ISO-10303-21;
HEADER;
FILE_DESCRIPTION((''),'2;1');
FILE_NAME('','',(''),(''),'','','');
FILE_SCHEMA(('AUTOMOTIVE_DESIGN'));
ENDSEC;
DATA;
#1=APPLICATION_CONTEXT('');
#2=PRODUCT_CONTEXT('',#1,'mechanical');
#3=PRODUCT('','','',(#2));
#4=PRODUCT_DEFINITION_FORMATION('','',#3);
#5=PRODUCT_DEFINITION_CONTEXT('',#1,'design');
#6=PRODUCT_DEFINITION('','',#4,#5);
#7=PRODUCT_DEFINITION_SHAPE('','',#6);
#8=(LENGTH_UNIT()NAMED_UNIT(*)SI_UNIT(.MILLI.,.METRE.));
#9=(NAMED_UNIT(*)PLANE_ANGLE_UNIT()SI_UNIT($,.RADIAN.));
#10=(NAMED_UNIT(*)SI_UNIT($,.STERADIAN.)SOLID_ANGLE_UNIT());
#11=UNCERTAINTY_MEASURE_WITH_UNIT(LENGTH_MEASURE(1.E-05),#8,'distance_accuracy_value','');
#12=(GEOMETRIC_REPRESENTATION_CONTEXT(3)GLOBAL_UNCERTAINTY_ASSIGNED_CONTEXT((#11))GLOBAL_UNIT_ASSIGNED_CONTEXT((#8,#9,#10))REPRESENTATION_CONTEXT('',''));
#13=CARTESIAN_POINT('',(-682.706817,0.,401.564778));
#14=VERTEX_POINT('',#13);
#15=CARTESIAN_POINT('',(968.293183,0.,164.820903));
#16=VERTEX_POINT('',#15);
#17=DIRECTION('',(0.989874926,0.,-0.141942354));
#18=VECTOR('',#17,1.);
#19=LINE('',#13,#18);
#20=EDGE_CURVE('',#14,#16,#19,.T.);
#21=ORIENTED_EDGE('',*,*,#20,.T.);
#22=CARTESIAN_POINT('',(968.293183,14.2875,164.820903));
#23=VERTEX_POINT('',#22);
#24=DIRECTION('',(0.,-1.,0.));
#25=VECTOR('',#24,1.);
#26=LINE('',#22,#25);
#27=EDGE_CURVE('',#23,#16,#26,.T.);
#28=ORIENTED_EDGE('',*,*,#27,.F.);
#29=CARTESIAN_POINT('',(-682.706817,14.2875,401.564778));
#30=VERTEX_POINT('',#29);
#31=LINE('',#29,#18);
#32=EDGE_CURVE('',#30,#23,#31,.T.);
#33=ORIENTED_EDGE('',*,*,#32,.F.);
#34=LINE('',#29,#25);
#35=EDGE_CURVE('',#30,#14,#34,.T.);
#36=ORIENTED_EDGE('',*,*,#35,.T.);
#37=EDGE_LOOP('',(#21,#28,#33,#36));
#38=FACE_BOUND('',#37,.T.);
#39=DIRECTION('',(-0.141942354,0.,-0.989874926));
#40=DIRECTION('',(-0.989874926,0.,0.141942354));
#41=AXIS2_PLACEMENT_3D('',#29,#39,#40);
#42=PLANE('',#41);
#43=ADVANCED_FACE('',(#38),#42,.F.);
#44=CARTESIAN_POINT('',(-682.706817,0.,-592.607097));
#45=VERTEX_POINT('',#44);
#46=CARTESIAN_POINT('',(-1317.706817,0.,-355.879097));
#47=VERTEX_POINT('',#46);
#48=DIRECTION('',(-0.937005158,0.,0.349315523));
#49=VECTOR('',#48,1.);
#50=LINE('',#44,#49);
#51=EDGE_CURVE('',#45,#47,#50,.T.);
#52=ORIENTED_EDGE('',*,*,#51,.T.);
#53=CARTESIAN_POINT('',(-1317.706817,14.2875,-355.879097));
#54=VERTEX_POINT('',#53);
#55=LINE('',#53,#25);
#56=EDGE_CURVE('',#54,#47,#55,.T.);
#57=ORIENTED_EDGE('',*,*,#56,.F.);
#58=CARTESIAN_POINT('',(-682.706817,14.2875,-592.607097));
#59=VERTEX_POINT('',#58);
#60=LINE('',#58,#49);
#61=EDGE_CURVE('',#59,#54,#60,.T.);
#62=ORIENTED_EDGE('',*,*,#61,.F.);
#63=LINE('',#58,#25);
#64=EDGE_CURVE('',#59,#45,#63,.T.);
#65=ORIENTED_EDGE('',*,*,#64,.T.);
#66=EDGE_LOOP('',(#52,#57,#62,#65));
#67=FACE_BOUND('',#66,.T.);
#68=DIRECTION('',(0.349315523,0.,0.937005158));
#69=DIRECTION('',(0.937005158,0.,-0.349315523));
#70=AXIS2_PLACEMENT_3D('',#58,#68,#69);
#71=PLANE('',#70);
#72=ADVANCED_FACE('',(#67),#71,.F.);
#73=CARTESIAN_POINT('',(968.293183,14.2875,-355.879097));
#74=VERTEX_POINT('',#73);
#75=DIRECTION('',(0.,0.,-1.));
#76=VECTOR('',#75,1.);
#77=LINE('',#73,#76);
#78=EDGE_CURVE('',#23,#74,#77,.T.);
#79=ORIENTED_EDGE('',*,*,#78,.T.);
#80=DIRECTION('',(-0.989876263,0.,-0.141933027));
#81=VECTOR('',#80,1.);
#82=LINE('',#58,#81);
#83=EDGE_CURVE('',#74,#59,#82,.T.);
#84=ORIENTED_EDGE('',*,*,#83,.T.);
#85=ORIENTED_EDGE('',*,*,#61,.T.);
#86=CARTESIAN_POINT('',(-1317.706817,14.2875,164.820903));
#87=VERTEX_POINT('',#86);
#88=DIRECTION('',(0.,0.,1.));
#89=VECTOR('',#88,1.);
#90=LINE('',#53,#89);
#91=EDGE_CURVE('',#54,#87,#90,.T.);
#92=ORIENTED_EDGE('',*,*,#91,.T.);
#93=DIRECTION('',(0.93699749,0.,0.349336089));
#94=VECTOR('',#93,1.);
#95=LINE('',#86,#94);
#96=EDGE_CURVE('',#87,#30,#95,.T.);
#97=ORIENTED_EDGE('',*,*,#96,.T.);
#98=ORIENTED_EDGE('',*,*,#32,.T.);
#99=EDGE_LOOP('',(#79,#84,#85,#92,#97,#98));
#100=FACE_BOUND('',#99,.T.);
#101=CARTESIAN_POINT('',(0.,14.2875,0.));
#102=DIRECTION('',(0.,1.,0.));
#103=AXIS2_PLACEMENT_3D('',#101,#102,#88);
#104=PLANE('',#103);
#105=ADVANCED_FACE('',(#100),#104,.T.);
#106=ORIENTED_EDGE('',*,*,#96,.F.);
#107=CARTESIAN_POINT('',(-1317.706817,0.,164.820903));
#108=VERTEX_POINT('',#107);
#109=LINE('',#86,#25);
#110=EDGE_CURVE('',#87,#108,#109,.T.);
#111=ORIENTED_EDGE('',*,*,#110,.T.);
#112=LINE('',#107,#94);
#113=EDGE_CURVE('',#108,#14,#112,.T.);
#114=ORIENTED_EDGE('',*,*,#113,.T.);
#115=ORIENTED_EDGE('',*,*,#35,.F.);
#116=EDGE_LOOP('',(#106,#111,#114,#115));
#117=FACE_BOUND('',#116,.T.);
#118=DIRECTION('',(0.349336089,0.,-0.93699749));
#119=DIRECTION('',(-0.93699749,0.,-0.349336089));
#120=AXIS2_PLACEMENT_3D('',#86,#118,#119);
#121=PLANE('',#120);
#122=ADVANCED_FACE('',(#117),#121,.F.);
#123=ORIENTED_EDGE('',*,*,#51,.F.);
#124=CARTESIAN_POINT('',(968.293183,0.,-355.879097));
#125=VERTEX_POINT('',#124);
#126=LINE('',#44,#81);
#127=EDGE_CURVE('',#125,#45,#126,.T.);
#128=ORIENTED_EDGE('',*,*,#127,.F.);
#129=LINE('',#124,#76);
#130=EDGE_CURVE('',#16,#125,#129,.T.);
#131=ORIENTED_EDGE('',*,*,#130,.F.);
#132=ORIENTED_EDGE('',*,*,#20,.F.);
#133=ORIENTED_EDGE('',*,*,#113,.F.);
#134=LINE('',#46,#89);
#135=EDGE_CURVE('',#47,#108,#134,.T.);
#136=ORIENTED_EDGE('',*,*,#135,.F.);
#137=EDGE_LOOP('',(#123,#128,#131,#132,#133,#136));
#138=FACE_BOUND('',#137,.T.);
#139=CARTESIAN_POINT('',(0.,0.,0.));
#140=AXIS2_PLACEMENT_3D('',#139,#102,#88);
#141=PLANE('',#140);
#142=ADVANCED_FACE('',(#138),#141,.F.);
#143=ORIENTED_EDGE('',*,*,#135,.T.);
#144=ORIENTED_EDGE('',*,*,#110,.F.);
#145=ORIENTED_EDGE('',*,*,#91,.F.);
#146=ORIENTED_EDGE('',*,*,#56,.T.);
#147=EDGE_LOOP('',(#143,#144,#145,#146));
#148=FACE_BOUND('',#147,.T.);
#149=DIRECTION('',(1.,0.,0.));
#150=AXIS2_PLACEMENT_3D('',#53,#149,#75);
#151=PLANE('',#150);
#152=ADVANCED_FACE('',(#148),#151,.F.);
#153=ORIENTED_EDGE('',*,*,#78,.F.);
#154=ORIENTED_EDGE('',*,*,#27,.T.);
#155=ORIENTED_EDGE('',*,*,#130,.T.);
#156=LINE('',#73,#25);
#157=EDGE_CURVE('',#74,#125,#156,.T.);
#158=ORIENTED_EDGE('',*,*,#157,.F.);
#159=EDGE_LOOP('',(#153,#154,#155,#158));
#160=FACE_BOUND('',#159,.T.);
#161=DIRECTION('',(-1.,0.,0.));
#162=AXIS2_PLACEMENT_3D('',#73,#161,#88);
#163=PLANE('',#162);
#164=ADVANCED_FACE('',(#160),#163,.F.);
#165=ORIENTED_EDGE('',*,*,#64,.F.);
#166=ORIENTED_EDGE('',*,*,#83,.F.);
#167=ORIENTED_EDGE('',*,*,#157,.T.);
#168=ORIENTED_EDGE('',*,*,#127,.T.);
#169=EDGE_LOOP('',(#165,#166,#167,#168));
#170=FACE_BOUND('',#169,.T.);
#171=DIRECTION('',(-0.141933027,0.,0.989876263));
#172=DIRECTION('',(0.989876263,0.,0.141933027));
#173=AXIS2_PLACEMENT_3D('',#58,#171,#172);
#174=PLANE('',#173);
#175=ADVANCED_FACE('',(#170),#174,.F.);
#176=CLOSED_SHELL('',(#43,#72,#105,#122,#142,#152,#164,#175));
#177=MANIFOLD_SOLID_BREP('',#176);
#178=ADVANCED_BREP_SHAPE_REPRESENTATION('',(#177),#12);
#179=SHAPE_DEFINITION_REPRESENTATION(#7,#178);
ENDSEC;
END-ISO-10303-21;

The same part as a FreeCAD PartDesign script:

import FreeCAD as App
import Part
import Sketcher
Q = App.Units.Quantity


def add_polygon(sketch, points):
    """Adds a closed chain of lines whose ends are joined by coincident constraints."""
    first, n = sketch.GeometryCount, len(points)
    for a, b in zip(points, points[1:] + points[:1]):
        sketch.addGeometry(Part.LineSegment(App.Vector(*a, 0), App.Vector(*b, 0)), False)
    for i in range(n):
        sketch.addConstraint(Sketcher.Constraint("Coincident", first + i, 2, first + (i + 1) % n, 1))

doc = App.newDocument("Part")
body = doc.addObject("PartDesign::Body", "Body")

# Sketch on XZ plane
sketch1 = body.newObject("Sketcher::SketchObject", "Sketch")
sketch1.AttachmentSupport = (doc.getObject("XZ_Plane"), [""])
sketch1.MapMode = "FlatFace"
add_polygon(sketch1, [(-1318, -356), (-1318, 165), (-683, 402), (968, 165), (968, -356), (-683, -593)])  # lines 0-5
sketch1.addConstraint(Sketcher.Constraint("Vertical", 0))
sketch1.addConstraint(Sketcher.Constraint("Vertical", 3))
sketch1.addConstraint(Sketcher.Constraint("Horizontal", 0, 2, 2, 2))
sketch1.addConstraint(Sketcher.Constraint("Horizontal", 3, 2, 5, 2))
sketch1.addConstraint(Sketcher.Constraint("Vertical", 1, 2, 4, 2))
sketch1.addConstraint(Sketcher.Constraint("DistanceY", 0, 1, 0, 2, Q("20.5 in")))
sketch1.addConstraint(Sketcher.Constraint("DistanceX", 0, 2, 1, 2, Q("25 in")))
sketch1.addConstraint(Sketcher.Constraint("DistanceX", 1, 2, 2, 2, Q("65 in")))
sketch1.addConstraint(Sketcher.Constraint("DistanceY", 4, 2, 0, 2, Q("29.82 in")))
sketch1.addConstraint(Sketcher.Constraint("DistanceY", 4, 2, 1, 2, Q("39.140625 in")))
sketch1.addConstraint(Sketcher.Constraint("DistanceX", 0, 2, -1, 1, Q("1317.706817 mm")))
sketch1.addConstraint(Sketcher.Constraint("DistanceY", -1, 1, 0, 2, Q("164.820903 mm")))
pad1 = body.newObject("PartDesign::Pad", "Pad")
pad1.Profile = sketch1
pad1.Length = Q("0.5625 in")
pad1.Reversed = True

doc.recompute()
